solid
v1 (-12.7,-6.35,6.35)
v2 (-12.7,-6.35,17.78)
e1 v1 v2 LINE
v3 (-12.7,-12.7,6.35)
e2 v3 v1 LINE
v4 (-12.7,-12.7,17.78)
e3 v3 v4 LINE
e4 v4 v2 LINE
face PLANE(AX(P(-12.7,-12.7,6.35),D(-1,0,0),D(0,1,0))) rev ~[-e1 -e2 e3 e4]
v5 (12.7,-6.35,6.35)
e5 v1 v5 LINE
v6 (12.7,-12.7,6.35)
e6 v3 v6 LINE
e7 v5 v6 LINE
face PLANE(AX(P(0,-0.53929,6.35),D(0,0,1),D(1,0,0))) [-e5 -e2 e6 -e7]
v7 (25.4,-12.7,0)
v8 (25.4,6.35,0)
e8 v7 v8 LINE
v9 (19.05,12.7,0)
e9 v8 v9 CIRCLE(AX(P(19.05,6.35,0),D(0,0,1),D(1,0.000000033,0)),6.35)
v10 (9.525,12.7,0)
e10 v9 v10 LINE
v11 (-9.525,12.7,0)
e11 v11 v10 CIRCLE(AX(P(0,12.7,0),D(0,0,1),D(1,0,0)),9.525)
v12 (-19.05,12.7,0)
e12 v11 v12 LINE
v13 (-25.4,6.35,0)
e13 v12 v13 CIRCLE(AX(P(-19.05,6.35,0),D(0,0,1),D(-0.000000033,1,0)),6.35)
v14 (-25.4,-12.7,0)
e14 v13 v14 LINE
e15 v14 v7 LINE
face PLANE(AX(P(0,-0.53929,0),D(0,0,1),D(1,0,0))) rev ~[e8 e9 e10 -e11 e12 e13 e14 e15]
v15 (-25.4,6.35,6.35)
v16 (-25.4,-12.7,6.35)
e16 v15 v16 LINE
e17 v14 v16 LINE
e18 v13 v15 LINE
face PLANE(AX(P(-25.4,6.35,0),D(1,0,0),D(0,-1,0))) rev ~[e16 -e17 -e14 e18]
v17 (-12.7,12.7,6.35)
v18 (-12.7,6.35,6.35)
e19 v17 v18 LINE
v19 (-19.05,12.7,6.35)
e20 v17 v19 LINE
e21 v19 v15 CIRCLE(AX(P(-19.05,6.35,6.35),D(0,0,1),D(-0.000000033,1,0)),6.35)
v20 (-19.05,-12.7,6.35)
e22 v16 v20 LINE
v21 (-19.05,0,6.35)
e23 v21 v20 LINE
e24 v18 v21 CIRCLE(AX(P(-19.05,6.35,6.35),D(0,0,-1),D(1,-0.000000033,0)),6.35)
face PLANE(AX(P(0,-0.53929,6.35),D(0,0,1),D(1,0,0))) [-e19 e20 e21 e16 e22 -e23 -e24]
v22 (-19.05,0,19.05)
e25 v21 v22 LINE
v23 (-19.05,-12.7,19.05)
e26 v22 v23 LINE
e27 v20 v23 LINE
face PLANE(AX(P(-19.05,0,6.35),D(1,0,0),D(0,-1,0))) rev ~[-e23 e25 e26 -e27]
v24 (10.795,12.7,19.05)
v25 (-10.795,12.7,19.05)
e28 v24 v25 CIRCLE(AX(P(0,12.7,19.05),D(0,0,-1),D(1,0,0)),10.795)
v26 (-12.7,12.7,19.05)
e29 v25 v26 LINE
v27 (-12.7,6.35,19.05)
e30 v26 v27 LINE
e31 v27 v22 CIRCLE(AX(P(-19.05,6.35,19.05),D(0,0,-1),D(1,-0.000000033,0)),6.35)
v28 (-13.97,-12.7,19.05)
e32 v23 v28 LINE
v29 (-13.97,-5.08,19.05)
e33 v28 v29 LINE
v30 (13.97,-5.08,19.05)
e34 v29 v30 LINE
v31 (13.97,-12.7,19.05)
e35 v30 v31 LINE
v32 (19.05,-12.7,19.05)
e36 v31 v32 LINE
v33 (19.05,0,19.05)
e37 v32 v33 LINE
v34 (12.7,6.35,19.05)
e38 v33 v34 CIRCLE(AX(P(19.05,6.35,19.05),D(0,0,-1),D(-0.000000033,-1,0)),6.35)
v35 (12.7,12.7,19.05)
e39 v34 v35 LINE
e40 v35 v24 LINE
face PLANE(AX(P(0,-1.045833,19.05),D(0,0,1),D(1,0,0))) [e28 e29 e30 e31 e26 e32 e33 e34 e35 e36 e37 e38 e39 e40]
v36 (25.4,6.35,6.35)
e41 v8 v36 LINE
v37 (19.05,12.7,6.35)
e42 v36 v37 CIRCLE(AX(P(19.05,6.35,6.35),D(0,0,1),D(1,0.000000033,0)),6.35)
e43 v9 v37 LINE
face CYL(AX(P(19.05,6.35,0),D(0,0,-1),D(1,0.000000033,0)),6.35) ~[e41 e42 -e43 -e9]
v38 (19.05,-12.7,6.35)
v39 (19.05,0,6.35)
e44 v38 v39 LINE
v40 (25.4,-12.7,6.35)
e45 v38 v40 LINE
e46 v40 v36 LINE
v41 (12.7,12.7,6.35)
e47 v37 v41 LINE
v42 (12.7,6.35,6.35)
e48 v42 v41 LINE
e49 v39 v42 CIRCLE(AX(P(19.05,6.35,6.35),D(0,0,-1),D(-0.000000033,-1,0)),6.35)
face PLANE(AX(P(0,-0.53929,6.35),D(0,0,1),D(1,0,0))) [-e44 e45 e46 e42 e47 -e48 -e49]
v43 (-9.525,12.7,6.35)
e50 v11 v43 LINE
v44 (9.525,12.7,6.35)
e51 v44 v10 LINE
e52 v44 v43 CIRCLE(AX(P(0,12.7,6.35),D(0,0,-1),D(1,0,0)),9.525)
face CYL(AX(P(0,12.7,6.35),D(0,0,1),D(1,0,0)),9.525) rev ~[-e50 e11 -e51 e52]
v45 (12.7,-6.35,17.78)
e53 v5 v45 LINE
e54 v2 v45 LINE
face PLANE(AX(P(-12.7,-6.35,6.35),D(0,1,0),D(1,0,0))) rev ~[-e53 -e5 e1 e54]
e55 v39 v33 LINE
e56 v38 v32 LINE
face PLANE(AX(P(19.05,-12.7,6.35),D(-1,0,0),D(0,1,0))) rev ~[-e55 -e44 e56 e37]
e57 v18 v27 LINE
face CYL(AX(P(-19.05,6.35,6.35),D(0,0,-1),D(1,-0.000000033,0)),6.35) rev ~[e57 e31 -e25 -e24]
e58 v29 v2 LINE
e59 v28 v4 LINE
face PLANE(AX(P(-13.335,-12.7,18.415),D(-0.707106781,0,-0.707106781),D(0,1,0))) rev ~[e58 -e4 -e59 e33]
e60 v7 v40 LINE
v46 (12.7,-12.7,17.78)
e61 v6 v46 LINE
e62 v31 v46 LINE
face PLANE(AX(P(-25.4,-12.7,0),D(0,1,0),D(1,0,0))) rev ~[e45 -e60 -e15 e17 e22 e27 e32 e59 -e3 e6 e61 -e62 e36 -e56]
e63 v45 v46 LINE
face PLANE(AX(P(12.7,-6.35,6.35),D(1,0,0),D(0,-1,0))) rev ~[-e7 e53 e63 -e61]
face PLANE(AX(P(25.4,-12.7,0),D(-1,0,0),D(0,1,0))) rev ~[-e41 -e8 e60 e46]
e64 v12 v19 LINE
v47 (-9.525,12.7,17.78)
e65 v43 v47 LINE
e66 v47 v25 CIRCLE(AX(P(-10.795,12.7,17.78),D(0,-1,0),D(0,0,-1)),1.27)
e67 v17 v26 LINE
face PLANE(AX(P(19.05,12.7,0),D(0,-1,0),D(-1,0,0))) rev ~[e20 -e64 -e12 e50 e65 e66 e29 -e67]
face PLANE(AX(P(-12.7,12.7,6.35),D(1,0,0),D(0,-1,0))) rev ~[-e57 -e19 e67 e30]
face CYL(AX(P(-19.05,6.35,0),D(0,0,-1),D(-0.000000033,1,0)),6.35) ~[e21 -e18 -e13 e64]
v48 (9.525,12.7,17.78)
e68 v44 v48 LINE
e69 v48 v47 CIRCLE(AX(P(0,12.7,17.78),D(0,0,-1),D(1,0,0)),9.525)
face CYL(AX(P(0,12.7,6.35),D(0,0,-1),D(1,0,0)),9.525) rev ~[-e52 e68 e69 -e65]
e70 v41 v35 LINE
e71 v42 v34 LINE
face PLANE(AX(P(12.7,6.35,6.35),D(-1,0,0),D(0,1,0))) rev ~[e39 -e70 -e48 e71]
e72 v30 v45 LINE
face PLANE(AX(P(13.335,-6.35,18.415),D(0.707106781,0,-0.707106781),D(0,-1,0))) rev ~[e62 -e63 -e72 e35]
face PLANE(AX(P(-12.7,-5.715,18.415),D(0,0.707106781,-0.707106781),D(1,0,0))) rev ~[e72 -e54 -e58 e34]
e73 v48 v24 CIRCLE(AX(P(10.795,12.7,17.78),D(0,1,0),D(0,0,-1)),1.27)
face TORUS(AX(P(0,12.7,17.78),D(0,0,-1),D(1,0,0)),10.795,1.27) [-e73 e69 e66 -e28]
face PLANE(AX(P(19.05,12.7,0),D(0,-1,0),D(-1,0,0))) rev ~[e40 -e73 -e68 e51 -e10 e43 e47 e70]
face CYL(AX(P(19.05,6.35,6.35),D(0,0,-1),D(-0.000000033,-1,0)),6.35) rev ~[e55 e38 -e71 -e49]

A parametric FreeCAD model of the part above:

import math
import FreeCAD as App
import Part
import Sketcher
from FreeCAD import Vector
Q = App.Units.Quantity


def edges_at(feature, points):
    """Names of the edges that pass closest to the given points."""
    edges = feature.Shape.Edges
    near = lambda p: min(range(len(edges)), key=lambda i: edges[i].distToShape(Part.Vertex(*p))[0])
    return sorted({f"Edge{near(p) + 1}" for p in points})

doc = App.newDocument("Part")
params = doc.addObject("Spreadsheet::Sheet", "Params")
for row, (alias, value) in enumerate([
    ("sketch1_width", "2 in"),
    ("sketch1_radius", "0.25 in"),
    ("pad1_length", "0.25 in"),
    ("sketch2_width", "1 in"),
    ("sketch2_radius", "0.25 in"),
    ("sketch2_radius2", "0.375 in"),
    ("pad2_length", "0.5 in"),
    ("sketch3_diameter", "0.75 in"),
    ("pocket1_length", "1 in"),
    ("fillet_radius", "0.05 in"),
    ("chamfer_size", "0.05 in"),
], start=1):
    params.set(f"A{row}", alias)
    params.set(f"B{row}", "=" + value)
    params.setAlias(f"B{row}", alias)

body = doc.addObject("PartDesign::Body", "Body")

# Sketch on XY plane
sketch1 = doc.addObject("Sketcher::SketchObject", "Sketch")
body.addObject(sketch1)
sketch1.AttachmentSupport = (doc.XY_Plane, [""])
sketch1.MapMode = "FlatFace"
sketch1.addGeometry([
    Part.ArcOfCircle(Part.Circle(Vector(19, 6, 0), Vector(0, 0, 1), 6), math.radians(0), math.radians(90)),  # 0
    Part.LineSegment(Vector(19, 13, 0), Vector(-19, 13, 0)),  # 1
    Part.ArcOfCircle(Part.Circle(Vector(-19, 6, 0), Vector(0, 0, 1), 6), math.radians(90), math.radians(180)),  # 2
    Part.LineSegment(Vector(-25, 6, 0), Vector(-25, -13, 0)),  # 3
    Part.LineSegment(Vector(-25, -13, 0), Vector(25, -13, 0)),  # 4
    Part.LineSegment(Vector(25, -13, 0), Vector(25, 6, 0)),  # 5
], False)
sketch1.addConstraint([
    Sketcher.Constraint("Tangent", 0, 2, 1, 1),
    Sketcher.Constraint("Tangent", 1, 2, 2, 1),
    Sketcher.Constraint("Tangent", 2, 2, 3, 1),
    Sketcher.Constraint("Coincident", 3, 2, 4, 1),
    Sketcher.Constraint("Coincident", 4, 2, 5, 1),
    Sketcher.Constraint("Tangent", 5, 2, 0, 1),
    Sketcher.Constraint("Horizontal", 1),
    Sketcher.Constraint("Vertical", 3),
    Sketcher.Constraint("Horizontal", 4),
    Sketcher.Constraint("Vertical", 5),
    Sketcher.Constraint("Equal", 0, 2),
    Sketcher.Constraint("DistanceX", 4, 1, 4, 2, Q("2 in")),
    Sketcher.Constraint("Radius", 0, Q("0.25 in")),
    Sketcher.Constraint("DistanceX", 2, 2, -1, 1, Q("1 in")),
    Sketcher.Constraint("DistanceY", 3, 2, 1, 2, Q("1 in")),
    Sketcher.Constraint("DistanceY", -1, 1, 0, 2, Q("0.5 in")),
])
sketch1.setExpression("Constraints[11]", "Params.sketch1_width")
sketch1.setExpression("Constraints[12]", "Params.sketch1_radius")
pad1 = doc.addObject("PartDesign::Pad", "Pad")
body.addObject(pad1)
pad1.Profile = sketch1
pad1.setExpression("Length", "Params.pad1_length")

# Sketch on XY plane
sketch2 = doc.addObject("Sketcher::SketchObject", "Sketch001")
body.addObject(sketch2)
sketch2.AttachmentSupport = (doc.XY_Plane, [""])
sketch2.MapMode = "FlatFace"
sketch2.AttachmentOffset = App.Placement(Vector(0, 0, 0.25 * 25.4), App.Rotation())
sketch2.addGeometry([
    Part.LineSegment(Vector(-9.5, 12.7, 0), Vector(-12.7, 12.7, 0)),  # 0
    Part.LineSegment(Vector(-12.7, 12.7, 0), Vector(-12.7, 6.3, 0)),  # 1
    Part.ArcOfCircle(Part.Circle(Vector(-19.1, 6.4, 0), Vector(0, 0, 1), 6.4), math.radians(-90), math.radians(0)),  # 2
    Part.LineSegment(Vector(-19.1, 0, 0), Vector(-19.1, -12.7, 0)),  # 3
    Part.LineSegment(Vector(-19.1, -12.7, 0), Vector(-12.7, -12.7, 0)),  # 4
    Part.LineSegment(Vector(-12.7, -12.7, 0), Vector(-12.7, -6.3, 0)),  # 5
    Part.LineSegment(Vector(-12.7, -6.3, 0), Vector(12.7, -6.3, 0)),  # 6
    Part.LineSegment(Vector(12.7, -6.3, 0), Vector(12.7, -12.7, 0)),  # 7
    Part.LineSegment(Vector(12.7, -12.7, 0), Vector(19.1, -12.7, 0)),  # 8
    Part.LineSegment(Vector(19.1, -12.7, 0), Vector(19.1, 0, 0)),  # 9
    Part.ArcOfCircle(Part.Circle(Vector(19.1, 6.4, 0), Vector(0, 0, 1), 6.4), math.radians(-180), math.radians(-90)),  # 10
    Part.LineSegment(Vector(12.7, 6.3, 0), Vector(12.7, 12.7, 0)),  # 11
    Part.LineSegment(Vector(12.7, 12.7, 0), Vector(9.5, 12.7, 0)),  # 12
    Part.ArcOfCircle(Part.Circle(Vector(0, 12.7, 0), Vector(0, 0, 1), 9.5), math.radians(180), math.radians(360)),  # 13
], False)
sketch2.addConstraint([
    Sketcher.Constraint("Coincident", 0, 2, 1, 1),
    Sketcher.Constraint("Tangent", 1, 2, 2, 2),
    Sketcher.Constraint("Coincident", 2, 1, 3, 1),
    Sketcher.Constraint("Coincident", 3, 2, 4, 1),
    Sketcher.Constraint("Coincident", 4, 2, 5, 1),
    Sketcher.Constraint("Coincident", 5, 2, 6, 1),
    Sketcher.Constraint("Coincident", 6, 2, 7, 1),
    Sketcher.Constraint("Coincident", 7, 2, 8, 1),
    Sketcher.Constraint("Coincident", 8, 2, 9, 1),
    Sketcher.Constraint("Coincident", 9, 2, 10, 2),
    Sketcher.Constraint("Tangent", 10, 1, 11, 1),
    Sketcher.Constraint("Coincident", 11, 2, 12, 1),
    Sketcher.Constraint("Coincident", 12, 2, 13, 2),
    Sketcher.Constraint("Coincident", 13, 1, 0, 1),
    Sketcher.Constraint("Horizontal", 0),
    Sketcher.Constraint("Vertical", 1),
    Sketcher.Constraint("Vertical", 3),
    Sketcher.Constraint("Horizontal", 4),
    Sketcher.Constraint("Vertical", 5),
    Sketcher.Constraint("Horizontal", 6),
    Sketcher.Constraint("Vertical", 7),
    Sketcher.Constraint("Horizontal", 8),
    Sketcher.Constraint("Vertical", 9),
    Sketcher.Constraint("Vertical", 11),
    Sketcher.Constraint("Horizontal", 12),
    Sketcher.Constraint("Equal", 2, 10),
    Sketcher.Constraint("Symmetric", 1, 2, 6, 2, -1, 1),
    Sketcher.Constraint("Symmetric", 2, 1, 9, 2, -1, 1),
    Sketcher.Constraint("Symmetric", 5, 2, 10, 1, -1, 1),
    Sketcher.Constraint("Symmetric", 4, 2, 7, 2, -2),
    Sketcher.Constraint("Symmetric", 12, 2, 13, 1, -2),
    Sketcher.Constraint("Horizontal", 13, 3, 0, 2),
    Sketcher.Constraint("Vertical", 10, 3, 8, 2),
    Sketcher.Constraint("Equal", 8, 1),
    Sketcher.Constraint("Equal", 1, 5),
    Sketcher.Constraint("DistanceX", 6, 1, 6, 2, Q("1 in")),
    Sketcher.Constraint("Radius", 2, Q("0.25 in")),
    Sketcher.Constraint("Radius", 13, Q("0.375 in")),
])
sketch2.setExpression("Constraints[35]", "Params.sketch2_width")
sketch2.setExpression("Constraints[36]", "Params.sketch2_radius")
sketch2.setExpression("Constraints[37]", "Params.sketch2_radius2")
pad2 = doc.addObject("PartDesign::Pad", "Pad001")
body.addObject(pad2)
pad2.Profile = sketch2
pad2.setExpression("Length", "Params.pad2_length")

# Sketch on XY plane
sketch3 = doc.addObject("Sketcher::SketchObject", "Sketch002")
body.addObject(sketch3)
sketch3.AttachmentSupport = (doc.XY_Plane, [""])
sketch3.MapMode = "FlatFace"
sketch3.AttachmentOffset = App.Placement(Vector(0, 0, 0.25 * 25.4), App.Rotation())
sketch3.addGeometry(Part.Circle(Vector(0, 13, 0), Vector(0, 0, 1), 10), False)
sketch3.addConstraint([
    Sketcher.Constraint("PointOnObject", 0, 3, -2),
    Sketcher.Constraint("Diameter", 0, Q("0.75 in")),
    Sketcher.Constraint("DistanceY", -1, 1, 0, 3, Q("0.5 in")),
])
sketch3.setExpression("Constraints[1]", "Params.sketch3_diameter")
pocket1 = doc.addObject("PartDesign::Pocket", "Pocket")
body.addObject(pocket1)
pocket1.Profile = sketch3
pocket1.setExpression("Length", "Params.pocket1_length")
doc.recompute()

fillet = doc.addObject("PartDesign::Fillet", "Fillet")
body.addObject(fillet)
fillet.Base = (pocket1, edges_at(pocket1, [(0, 3.175, 19.05)]))
fillet.setExpression("Radius", "Params.fillet_radius")
doc.recompute()

chamfer = doc.addObject("PartDesign::Chamfer", "Chamfer")
body.addObject(chamfer)
chamfer.Base = (fillet, edges_at(fillet, [(0, -6.35, 19.05), (12.7, -9.525, 19.05), (-12.7, -9.525, 19.05)]))
chamfer.setExpression("Size", "Params.chamfer_size")

doc.recompute()
